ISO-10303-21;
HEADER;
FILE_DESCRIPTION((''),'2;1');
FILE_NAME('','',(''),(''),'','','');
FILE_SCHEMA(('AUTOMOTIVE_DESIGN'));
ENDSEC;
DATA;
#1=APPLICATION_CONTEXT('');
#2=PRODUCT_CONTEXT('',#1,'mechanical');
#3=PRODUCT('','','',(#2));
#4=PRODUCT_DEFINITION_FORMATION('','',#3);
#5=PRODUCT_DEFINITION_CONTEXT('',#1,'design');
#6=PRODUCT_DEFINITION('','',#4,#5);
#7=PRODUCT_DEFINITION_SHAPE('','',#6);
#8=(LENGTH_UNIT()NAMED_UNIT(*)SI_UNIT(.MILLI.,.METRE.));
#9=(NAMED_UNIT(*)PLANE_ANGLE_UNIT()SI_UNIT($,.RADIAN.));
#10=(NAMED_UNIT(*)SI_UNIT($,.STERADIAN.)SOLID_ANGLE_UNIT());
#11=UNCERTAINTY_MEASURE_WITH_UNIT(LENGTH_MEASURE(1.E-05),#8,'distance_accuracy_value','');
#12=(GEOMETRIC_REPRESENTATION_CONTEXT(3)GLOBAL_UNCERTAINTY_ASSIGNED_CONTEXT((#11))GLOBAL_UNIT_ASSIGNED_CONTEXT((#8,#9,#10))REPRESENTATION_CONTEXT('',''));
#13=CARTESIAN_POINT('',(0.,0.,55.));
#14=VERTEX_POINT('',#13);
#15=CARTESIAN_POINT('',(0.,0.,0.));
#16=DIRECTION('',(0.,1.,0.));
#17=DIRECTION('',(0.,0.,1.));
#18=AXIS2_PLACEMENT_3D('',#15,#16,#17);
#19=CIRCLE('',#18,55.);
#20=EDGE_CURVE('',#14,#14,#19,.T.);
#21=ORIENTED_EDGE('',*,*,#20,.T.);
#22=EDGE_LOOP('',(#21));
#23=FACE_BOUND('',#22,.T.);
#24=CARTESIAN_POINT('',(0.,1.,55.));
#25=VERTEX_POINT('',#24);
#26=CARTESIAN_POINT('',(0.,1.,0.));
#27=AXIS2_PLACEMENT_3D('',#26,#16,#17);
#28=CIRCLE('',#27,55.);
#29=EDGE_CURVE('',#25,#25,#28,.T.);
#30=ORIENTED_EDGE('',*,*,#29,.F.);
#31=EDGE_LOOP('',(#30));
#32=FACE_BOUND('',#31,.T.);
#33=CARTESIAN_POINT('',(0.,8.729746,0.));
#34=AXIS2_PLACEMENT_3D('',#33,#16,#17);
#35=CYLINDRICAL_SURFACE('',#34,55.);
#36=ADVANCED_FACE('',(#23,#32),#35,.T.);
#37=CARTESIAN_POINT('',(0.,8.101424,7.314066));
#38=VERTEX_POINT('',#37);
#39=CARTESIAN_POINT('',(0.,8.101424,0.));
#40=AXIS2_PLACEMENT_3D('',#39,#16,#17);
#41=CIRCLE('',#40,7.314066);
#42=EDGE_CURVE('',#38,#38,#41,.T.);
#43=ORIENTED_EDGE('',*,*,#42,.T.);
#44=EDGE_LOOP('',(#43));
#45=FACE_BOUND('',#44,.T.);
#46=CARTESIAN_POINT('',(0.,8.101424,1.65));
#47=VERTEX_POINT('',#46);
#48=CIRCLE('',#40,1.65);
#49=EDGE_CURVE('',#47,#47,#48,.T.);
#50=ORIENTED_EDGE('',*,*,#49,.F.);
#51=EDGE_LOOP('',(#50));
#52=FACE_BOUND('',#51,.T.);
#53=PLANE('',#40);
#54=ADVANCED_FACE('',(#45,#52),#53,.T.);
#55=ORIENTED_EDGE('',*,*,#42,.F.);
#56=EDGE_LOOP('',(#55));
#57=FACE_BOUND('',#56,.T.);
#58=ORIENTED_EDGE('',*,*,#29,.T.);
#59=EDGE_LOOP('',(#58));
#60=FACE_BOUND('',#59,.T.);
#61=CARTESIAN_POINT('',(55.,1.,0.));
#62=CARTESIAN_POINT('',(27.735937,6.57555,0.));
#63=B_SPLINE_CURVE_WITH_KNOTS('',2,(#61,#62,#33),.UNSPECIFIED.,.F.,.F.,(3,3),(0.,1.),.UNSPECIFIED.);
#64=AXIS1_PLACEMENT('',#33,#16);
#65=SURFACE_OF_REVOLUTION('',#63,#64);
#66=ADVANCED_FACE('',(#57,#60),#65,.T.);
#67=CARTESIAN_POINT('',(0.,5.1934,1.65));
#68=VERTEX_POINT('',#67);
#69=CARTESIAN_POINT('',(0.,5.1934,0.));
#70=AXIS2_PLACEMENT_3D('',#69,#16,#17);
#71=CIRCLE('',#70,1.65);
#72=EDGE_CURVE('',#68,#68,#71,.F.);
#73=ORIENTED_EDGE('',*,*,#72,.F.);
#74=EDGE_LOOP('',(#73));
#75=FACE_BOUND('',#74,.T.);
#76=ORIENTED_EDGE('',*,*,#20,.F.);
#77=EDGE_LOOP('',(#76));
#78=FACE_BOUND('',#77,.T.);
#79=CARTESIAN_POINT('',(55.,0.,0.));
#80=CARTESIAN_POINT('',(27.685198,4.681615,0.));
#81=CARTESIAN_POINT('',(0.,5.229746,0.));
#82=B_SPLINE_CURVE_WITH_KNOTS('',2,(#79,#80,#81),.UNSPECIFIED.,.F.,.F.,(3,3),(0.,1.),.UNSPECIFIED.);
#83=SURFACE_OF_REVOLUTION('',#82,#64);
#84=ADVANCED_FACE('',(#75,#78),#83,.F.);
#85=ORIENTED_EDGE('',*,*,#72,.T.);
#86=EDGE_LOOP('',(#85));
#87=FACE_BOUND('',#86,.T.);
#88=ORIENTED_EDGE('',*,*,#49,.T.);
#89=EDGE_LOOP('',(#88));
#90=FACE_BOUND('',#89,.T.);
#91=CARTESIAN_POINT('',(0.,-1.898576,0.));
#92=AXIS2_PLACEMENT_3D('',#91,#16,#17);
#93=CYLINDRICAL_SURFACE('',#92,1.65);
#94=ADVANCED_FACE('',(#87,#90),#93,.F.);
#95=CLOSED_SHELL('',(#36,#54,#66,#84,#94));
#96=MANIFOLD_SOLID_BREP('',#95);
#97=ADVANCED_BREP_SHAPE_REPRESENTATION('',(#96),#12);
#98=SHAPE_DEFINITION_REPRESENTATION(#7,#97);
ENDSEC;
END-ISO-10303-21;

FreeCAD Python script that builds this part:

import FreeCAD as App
import Part
import Sketcher

V = App.Vector
Q = App.Units.Quantity

doc = App.newDocument("Part")
body = doc.addObject("PartDesign::Body", "Body")

# Sketch on XY plane
sketch1 = body.newObject("Sketcher::SketchObject", "Sketch")
sketch1.AttachmentSupport = (doc.getObject("XY_Plane"), [""])
sketch1.MapMode = "FlatFace"
sketch1.addGeometry([
    Part.BSplineCurve([V(55, 0, 0), V(27.685198, 4.681615, 0), V(0, 5.229746, 0)], [3, 3], [0, 1], False, 2, [1, 1, 1], False),  # 0
    Part.LineSegment(V(55, 0, 0), V(55, 1, 0)),  # 1
    Part.BSplineCurve([V(55, 1, 0), V(31.334794, 5.839577, 0), V(7.314066, 8.101424, 0)], [3, 3], [0, 0.867999985], False, 2, [1, 1, 1], False),  # 2
    Part.LineSegment(V(7.314066, 8.101424, 0), V(0, 8.101424, 0)),  # 3
    Part.LineSegment(V(0, 8.101424, 0), V(0, 5.229746, 0)),  # 4
], False)
sketch1.addConstraint([
    Sketcher.Constraint("Block", 0),
    Sketcher.Constraint("Block", 2),
    Sketcher.Constraint("Coincident", 0, 1, 1, 1),
    Sketcher.Constraint("Coincident", 1, 2, 2, 1),
    Sketcher.Constraint("Coincident", 2, 2, 3, 1),
    Sketcher.Constraint("Coincident", 3, 2, 4, 1),
    Sketcher.Constraint("Coincident", 4, 2, 0, 2),
    Sketcher.Constraint("Horizontal", 3),
    Sketcher.Constraint("Vertical", 4),
])
revolution = body.newObject("PartDesign::Revolution", "Revolution")
revolution.Profile = sketch1
revolution.ReferenceAxis = (sketch1, ["V_Axis"])
revolution.Angle = 360

# Sketch on XZ plane
sketch2 = body.newObject("Sketcher::SketchObject", "Sketch001")
sketch2.AttachmentSupport = (doc.getObject("XZ_Plane"), [""])
sketch2.MapMode = "FlatFace"
sketch2.AttachmentOffset = App.Placement(V(0, 0, -8.101424), App.Rotation())
sketch2.addGeometry(Part.Circle(V(0, 0, 0), V(0, 0, 1), 1.65), False)
sketch2.addConstraint([
    Sketcher.Constraint("Coincident", 0, 3, -1, 1),
    Sketcher.Constraint("Diameter", 0, Q("3.3 mm")),
])
pocket1 = body.newObject("PartDesign::Pocket", "Pocket")
pocket1.Profile = sketch2
pocket1.Length = 10
pocket1.Reversed = True

doc.recompute()
